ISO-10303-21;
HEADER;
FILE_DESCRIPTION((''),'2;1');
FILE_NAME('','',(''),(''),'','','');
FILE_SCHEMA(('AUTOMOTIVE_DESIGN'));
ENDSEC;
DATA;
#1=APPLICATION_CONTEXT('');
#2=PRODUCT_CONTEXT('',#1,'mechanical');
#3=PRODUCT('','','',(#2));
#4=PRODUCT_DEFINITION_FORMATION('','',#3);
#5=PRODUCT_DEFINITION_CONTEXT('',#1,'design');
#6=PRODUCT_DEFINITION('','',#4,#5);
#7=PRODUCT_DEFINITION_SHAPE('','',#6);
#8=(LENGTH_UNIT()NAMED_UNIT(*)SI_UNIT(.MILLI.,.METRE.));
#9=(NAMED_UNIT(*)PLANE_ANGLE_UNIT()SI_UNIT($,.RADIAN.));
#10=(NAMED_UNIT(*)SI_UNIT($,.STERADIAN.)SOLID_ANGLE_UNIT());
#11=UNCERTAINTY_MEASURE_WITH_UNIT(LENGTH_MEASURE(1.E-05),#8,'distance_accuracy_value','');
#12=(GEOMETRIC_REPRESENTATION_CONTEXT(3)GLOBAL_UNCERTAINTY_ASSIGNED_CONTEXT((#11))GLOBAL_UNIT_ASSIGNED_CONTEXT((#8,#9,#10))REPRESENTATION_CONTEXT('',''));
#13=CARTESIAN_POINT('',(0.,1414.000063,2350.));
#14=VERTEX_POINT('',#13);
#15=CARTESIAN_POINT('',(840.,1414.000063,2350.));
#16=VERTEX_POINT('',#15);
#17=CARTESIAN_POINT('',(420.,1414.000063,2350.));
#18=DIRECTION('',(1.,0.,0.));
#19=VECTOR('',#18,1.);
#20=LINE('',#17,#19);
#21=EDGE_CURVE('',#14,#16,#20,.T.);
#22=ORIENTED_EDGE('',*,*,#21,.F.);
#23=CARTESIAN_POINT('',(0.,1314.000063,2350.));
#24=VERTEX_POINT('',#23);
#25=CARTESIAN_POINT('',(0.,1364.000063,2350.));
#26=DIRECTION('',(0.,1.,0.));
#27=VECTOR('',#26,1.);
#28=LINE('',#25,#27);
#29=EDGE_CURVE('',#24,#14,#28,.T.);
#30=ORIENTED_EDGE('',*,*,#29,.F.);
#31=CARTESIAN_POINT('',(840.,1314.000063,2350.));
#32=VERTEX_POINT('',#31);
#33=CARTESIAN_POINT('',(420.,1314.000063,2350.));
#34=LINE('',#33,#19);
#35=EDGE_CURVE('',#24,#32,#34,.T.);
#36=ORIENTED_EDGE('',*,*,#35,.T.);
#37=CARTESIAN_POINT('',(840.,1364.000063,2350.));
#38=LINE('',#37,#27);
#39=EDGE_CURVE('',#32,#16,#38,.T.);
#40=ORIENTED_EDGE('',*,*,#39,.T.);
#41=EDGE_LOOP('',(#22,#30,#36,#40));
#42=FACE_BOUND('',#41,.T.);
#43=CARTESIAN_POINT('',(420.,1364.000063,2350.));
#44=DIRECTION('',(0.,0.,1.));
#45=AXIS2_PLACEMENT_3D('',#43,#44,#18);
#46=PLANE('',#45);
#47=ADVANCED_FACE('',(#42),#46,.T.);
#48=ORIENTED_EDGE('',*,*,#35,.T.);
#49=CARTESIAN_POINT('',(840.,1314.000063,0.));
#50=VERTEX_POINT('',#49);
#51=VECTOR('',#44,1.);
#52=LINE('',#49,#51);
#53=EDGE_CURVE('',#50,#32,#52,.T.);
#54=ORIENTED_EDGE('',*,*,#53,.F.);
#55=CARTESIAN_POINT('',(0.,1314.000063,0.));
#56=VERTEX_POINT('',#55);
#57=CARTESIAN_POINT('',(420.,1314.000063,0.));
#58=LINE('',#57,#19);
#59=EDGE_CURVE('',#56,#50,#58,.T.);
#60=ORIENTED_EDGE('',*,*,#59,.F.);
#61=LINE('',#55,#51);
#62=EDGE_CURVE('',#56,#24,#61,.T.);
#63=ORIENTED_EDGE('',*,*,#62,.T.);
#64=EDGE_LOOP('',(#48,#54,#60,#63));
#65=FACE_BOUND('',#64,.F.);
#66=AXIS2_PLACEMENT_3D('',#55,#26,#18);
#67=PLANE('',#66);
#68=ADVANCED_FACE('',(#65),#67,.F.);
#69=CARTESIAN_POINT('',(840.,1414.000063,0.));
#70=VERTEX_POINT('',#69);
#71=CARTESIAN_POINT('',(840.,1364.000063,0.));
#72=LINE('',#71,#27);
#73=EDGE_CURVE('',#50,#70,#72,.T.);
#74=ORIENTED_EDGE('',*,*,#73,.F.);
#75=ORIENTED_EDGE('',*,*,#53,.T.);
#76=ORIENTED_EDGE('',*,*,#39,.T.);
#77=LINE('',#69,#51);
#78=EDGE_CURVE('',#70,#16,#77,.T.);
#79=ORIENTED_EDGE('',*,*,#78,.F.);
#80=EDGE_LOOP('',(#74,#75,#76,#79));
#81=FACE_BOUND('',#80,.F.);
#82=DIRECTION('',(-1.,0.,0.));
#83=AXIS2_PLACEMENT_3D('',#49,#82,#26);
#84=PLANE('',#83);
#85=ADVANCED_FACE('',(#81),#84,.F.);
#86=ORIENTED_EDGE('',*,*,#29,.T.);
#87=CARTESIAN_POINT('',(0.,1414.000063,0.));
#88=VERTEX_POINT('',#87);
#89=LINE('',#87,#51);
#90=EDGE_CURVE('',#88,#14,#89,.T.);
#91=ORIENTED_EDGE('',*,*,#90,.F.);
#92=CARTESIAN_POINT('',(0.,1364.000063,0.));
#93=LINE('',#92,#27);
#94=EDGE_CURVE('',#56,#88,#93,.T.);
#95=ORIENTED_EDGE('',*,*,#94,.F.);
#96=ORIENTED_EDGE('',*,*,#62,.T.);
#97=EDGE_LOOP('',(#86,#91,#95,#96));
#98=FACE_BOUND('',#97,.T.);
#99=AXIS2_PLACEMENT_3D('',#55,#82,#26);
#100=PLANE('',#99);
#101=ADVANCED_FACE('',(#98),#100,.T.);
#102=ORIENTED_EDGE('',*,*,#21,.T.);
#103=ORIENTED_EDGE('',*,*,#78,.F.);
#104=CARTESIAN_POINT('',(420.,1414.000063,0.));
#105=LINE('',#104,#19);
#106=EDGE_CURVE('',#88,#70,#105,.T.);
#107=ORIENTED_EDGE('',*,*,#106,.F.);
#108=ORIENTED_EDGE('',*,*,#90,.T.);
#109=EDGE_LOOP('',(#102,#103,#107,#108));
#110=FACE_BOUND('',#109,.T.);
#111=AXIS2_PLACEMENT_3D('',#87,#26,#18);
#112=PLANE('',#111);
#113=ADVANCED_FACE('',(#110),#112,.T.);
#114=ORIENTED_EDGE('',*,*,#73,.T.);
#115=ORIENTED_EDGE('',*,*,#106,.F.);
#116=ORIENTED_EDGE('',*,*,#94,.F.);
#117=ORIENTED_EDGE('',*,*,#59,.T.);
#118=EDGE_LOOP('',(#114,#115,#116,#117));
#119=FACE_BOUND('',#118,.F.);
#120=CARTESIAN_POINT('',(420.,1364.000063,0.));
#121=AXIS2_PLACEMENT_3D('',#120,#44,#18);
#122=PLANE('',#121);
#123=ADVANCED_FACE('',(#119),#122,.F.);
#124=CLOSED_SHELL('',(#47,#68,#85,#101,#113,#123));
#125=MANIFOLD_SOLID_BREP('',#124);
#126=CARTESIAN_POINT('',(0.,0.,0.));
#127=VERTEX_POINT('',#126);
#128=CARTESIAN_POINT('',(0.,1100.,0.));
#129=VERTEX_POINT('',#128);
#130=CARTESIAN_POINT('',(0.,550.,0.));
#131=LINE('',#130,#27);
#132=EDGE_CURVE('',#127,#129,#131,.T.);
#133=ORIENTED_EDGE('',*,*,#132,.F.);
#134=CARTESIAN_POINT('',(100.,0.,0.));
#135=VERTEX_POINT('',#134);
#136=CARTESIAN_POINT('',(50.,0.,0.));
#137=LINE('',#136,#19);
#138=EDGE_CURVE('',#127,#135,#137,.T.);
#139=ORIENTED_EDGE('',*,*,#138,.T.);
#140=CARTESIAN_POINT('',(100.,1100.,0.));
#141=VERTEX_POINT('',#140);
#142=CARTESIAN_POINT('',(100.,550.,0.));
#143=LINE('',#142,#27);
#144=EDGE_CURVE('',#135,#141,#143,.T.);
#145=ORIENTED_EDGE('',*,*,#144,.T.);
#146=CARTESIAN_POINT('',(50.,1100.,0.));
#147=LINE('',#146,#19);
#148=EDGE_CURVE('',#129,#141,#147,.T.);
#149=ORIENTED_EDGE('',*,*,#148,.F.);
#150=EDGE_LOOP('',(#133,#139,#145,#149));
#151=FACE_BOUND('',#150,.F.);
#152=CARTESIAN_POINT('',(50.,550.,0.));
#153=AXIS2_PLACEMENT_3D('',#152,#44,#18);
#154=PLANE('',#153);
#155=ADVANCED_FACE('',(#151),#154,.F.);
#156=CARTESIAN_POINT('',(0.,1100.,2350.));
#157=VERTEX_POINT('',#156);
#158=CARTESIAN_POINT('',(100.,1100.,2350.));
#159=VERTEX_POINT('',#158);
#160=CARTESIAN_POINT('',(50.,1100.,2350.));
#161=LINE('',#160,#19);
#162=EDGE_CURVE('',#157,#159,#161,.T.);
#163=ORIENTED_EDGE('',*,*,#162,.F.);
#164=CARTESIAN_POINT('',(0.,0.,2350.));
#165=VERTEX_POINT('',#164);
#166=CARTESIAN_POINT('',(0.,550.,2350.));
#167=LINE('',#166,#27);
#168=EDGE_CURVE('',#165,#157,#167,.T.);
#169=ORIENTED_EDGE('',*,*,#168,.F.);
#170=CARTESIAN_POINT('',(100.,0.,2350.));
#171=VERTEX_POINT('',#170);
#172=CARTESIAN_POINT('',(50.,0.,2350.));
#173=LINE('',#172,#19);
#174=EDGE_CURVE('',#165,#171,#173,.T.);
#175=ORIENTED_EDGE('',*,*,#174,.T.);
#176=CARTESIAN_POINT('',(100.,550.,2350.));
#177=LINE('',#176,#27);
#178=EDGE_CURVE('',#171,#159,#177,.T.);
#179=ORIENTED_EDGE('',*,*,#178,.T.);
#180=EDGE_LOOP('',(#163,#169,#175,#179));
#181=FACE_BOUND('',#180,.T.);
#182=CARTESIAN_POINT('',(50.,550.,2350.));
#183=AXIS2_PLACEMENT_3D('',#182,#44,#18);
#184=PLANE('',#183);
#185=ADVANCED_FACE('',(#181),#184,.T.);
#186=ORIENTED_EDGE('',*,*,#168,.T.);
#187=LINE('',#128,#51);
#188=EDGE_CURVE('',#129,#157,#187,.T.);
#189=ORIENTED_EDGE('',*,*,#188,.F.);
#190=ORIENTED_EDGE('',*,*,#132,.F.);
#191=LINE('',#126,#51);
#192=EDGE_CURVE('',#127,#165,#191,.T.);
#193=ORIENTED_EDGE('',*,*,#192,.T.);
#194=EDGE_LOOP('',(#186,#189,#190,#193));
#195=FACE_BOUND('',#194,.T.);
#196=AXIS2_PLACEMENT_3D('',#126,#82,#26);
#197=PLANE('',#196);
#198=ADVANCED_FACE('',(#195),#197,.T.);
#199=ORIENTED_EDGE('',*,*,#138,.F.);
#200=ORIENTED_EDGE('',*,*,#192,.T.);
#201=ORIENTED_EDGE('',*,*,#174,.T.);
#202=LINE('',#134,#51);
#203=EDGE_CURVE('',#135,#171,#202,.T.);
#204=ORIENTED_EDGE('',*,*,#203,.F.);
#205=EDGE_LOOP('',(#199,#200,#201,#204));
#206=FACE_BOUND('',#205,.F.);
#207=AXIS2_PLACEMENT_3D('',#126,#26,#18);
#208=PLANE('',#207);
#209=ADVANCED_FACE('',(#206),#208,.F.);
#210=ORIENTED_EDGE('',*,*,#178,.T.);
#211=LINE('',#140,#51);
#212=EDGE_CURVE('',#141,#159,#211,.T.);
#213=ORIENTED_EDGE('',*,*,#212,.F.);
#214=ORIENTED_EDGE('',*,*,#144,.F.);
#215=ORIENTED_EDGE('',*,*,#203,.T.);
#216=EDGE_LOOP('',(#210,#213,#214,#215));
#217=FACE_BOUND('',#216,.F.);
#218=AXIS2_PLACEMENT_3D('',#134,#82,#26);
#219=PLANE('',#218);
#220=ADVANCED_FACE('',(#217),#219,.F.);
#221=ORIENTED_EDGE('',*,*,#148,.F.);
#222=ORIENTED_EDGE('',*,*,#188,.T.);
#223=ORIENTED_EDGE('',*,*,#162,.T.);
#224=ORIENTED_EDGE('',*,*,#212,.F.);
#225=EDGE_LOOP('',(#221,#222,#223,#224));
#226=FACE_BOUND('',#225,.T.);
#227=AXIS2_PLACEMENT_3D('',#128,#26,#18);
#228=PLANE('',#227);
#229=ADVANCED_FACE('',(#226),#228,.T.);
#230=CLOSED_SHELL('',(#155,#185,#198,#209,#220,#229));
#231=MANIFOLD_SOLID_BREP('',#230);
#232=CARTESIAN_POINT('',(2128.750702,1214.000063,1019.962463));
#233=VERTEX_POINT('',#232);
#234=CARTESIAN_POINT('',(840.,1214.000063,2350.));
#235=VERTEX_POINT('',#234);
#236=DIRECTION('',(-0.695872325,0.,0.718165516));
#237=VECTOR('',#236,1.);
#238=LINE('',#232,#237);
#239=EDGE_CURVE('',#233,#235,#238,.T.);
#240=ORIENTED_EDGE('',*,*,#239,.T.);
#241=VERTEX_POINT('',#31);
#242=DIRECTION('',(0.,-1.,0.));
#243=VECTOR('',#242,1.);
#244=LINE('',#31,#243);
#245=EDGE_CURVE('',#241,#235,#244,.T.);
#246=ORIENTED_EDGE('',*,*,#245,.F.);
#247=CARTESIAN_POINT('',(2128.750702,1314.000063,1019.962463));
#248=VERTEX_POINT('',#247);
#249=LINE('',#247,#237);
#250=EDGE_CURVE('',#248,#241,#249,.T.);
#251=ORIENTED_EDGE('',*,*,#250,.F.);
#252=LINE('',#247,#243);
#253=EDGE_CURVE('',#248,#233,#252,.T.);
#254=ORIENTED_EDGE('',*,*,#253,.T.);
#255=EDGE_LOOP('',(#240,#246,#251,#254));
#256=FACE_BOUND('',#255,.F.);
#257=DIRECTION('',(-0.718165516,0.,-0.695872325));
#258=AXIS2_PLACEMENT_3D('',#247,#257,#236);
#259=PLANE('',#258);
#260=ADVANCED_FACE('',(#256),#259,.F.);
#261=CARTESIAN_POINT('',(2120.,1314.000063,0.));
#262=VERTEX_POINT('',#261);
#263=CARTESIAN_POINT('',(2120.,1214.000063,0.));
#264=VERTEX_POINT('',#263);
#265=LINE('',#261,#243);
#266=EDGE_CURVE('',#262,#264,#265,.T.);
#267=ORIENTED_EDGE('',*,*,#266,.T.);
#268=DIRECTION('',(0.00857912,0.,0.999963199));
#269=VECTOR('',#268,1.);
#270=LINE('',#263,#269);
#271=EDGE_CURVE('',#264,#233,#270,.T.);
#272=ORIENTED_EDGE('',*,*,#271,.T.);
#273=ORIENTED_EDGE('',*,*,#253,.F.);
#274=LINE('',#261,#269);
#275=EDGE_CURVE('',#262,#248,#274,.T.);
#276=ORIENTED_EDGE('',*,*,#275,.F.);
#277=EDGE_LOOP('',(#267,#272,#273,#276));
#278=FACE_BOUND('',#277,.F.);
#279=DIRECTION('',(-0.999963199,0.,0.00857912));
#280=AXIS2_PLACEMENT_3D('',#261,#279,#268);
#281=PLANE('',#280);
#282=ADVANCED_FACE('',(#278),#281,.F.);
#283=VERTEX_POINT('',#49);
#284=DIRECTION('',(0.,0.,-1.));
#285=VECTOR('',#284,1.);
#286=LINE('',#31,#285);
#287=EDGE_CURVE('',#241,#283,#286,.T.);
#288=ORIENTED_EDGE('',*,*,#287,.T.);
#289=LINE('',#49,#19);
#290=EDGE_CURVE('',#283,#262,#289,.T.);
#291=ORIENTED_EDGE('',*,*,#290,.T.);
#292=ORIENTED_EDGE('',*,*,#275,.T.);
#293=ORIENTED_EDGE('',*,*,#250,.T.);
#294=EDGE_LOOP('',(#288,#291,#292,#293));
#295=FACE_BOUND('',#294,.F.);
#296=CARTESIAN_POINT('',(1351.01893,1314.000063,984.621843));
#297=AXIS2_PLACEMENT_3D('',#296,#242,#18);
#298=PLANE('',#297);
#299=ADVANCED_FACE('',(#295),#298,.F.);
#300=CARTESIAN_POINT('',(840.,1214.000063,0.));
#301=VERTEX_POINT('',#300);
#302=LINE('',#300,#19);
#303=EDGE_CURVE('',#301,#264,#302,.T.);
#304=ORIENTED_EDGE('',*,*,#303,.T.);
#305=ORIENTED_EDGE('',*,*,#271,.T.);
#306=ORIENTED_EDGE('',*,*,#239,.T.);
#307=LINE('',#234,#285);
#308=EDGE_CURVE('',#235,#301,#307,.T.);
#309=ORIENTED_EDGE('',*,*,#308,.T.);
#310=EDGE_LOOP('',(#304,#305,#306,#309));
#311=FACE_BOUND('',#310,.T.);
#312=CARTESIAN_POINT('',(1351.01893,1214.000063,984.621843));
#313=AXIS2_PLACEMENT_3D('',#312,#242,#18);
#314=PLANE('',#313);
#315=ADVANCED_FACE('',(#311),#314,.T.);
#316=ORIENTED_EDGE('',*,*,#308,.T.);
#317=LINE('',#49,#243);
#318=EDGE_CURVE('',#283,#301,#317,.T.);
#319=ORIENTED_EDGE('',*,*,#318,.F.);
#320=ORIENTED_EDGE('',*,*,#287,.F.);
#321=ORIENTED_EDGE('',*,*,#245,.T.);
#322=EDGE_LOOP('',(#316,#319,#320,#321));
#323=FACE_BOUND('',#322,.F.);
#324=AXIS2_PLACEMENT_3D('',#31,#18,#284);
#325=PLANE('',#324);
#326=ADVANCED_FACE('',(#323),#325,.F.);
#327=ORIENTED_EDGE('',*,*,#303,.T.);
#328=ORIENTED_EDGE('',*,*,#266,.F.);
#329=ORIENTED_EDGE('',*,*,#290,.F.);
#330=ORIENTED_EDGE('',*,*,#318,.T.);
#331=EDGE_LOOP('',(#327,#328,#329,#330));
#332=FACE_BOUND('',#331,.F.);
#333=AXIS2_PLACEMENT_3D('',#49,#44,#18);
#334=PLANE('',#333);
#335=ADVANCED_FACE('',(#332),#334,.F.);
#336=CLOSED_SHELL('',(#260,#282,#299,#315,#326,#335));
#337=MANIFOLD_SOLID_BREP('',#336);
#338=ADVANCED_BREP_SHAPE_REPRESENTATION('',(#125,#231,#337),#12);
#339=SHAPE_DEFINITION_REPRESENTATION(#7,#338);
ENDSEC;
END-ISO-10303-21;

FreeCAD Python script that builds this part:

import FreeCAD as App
import Part
import Sketcher
Q = App.Units.Quantity

doc = App.newDocument("Part")
params = doc.addObject("Spreadsheet::Sheet", "Params")
for row, (alias, value) in enumerate([
    ("sketch1_width", "100 mm"),
    ("sketch1_height", "1100 mm"),
    ("pad1_length", "2350 mm"),
    ("sketch2_width", "840 mm"),
    ("sketch2_height", "100 mm"),
    ("pad2_length", "2350 mm"),
    ("sketch3_width", "1280 mm"),
    ("sketch3_height", "2350 mm"),
    ("sketch3_length", "1020 mm"),
    ("pad3_length", "100 mm"),
], start=1):
    params.set(f"A{row}", alias)
    params.set(f"B{row}", "=" + value)
    params.setAlias(f"B{row}", alias)

body = doc.addObject("PartDesign::Body", "Body")

# Sketch on XY plane
sketch1 = doc.addObject("Sketcher::SketchObject", "Sketch")
body.addObject(sketch1)
sketch1.AttachmentSupport = (doc.XY_Plane, [""])
sketch1.MapMode = "FlatFace"
sketch1.addGeometry(Part.LineSegment(App.Vector(0, 1100, 0), App.Vector(0, 0, 0)), False)
sketch1.addGeometry(Part.LineSegment(App.Vector(0, 0, 0), App.Vector(100, 0, 0)), False)
sketch1.addGeometry(Part.LineSegment(App.Vector(100, 0, 0), App.Vector(100, 1100, 0)), False)
sketch1.addGeometry(Part.LineSegment(App.Vector(100, 1100, 0), App.Vector(0, 1100, 0)), False)
sketch1.addConstraint(Sketcher.Constraint("Coincident", 0, 2, 1, 1))
sketch1.addConstraint(Sketcher.Constraint("Coincident", 1, 2, 2, 1))
sketch1.addConstraint(Sketcher.Constraint("Coincident", 2, 2, 3, 1))
sketch1.addConstraint(Sketcher.Constraint("Coincident", 3, 2, 0, 1))
sketch1.addConstraint(Sketcher.Constraint("Vertical", 0))
sketch1.addConstraint(Sketcher.Constraint("Horizontal", 1))
sketch1.addConstraint(Sketcher.Constraint("Vertical", 2))
sketch1.addConstraint(Sketcher.Constraint("Horizontal", 3))
sketch1.addConstraint(Sketcher.Constraint("Coincident", 0, 2, -1, 1))
sketch1.addConstraint(Sketcher.Constraint("DistanceX", 1, 1, 1, 2, Q("100 mm")))
sketch1.addConstraint(Sketcher.Constraint("DistanceY", 0, 2, 0, 1, Q("1100 mm")))
sketch1.setExpression("Constraints[9]", "Params.sketch1_width")
sketch1.setExpression("Constraints[10]", "Params.sketch1_height")
pad1 = doc.addObject("PartDesign::Pad", "Pad")
body.addObject(pad1)
pad1.Profile = sketch1
pad1.setExpression("Length", "Params.pad1_length")
body2 = doc.addObject("PartDesign::Body", "Body001")

# Sketch on XY plane
sketch2 = doc.addObject("Sketcher::SketchObject", "Sketch001")
body2.addObject(sketch2)
sketch2.AttachmentSupport = (doc.getObject("XY_Plane001"), [""])
sketch2.MapMode = "FlatFace"
sketch2.addGeometry(Part.LineSegment(App.Vector(0, 1414.000063, 0), App.Vector(0, 1314.000063, 0)), False)
sketch2.addGeometry(Part.LineSegment(App.Vector(0, 1314.000063, 0), App.Vector(840, 1314.000063, 0)), False)
sketch2.addGeometry(Part.LineSegment(App.Vector(840, 1314.000063, 0), App.Vector(840, 1414.000063, 0)), False)
sketch2.addGeometry(Part.LineSegment(App.Vector(840, 1414.000063, 0), App.Vector(0, 1414.000063, 0)), False)
sketch2.addConstraint(Sketcher.Constraint("Coincident", 0, 2, 1, 1))
sketch2.addConstraint(Sketcher.Constraint("Coincident", 1, 2, 2, 1))
sketch2.addConstraint(Sketcher.Constraint("Coincident", 2, 2, 3, 1))
sketch2.addConstraint(Sketcher.Constraint("Coincident", 3, 2, 0, 1))
sketch2.addConstraint(Sketcher.Constraint("Vertical", 0))
sketch2.addConstraint(Sketcher.Constraint("Horizontal", 1))
sketch2.addConstraint(Sketcher.Constraint("Vertical", 2))
sketch2.addConstraint(Sketcher.Constraint("Horizontal", 3))
sketch2.addConstraint(Sketcher.Constraint("PointOnObject", 0, 2, -2))
sketch2.addConstraint(Sketcher.Constraint("DistanceX", 1, 1, 1, 2, Q("840 mm")))
sketch2.addConstraint(Sketcher.Constraint("DistanceY", 0, 2, 0, 1, Q("100 mm")))
sketch2.addConstraint(Sketcher.Constraint("DistanceY", -1, 1, 0, 2, Q("1314.000063 mm")))
sketch2.setExpression("Constraints[9]", "Params.sketch2_width")
sketch2.setExpression("Constraints[10]", "Params.sketch2_height")
pad2 = doc.addObject("PartDesign::Pad", "Pad001")
body2.addObject(pad2)
pad2.Profile = sketch2
pad2.setExpression("Length", "Params.pad2_length")
body3 = doc.addObject("PartDesign::Body", "Body002")

# Sketch on XZ plane
sketch3 = doc.addObject("Sketcher::SketchObject", "Sketch002")
body3.addObject(sketch3)
sketch3.AttachmentSupport = (doc.getObject("XZ_Plane002"), [""])
sketch3.MapMode = "FlatFace"
sketch3.AttachmentOffset = App.Placement(App.Vector(0, 0, -1314.000063), App.Rotation())
sketch3.addGeometry(Part.LineSegment(App.Vector(2128.750702, 1019.962463, 0), App.Vector(840, 2350, 0)), False)
sketch3.addGeometry(Part.LineSegment(App.Vector(840, 2350, 0), App.Vector(840, 0, 0)), False)
sketch3.addGeometry(Part.LineSegment(App.Vector(840, 0, 0), App.Vector(2120, 0, 0)), False)
sketch3.addGeometry(Part.LineSegment(App.Vector(2120, 0, 0), App.Vector(2128.750702, 1019.962463, 0)), False)
sketch3.addConstraint(Sketcher.Constraint("Coincident", 0, 2, 1, 1))
sketch3.addConstraint(Sketcher.Constraint("Coincident", 1, 2, 2, 1))
sketch3.addConstraint(Sketcher.Constraint("Coincident", 2, 2, 3, 1))
sketch3.addConstraint(Sketcher.Constraint("Coincident", 3, 2, 0, 1))
sketch3.addConstraint(Sketcher.Constraint("Vertical", 1))
sketch3.addConstraint(Sketcher.Constraint("Horizontal", 2))
sketch3.addConstraint(Sketcher.Constraint("PointOnObject", 1, 2, -1))
sketch3.addConstraint(Sketcher.Constraint("DistanceX", 2, 1, 2, 2, Q("1280 mm")))
sketch3.addConstraint(Sketcher.Constraint("DistanceY", 1, 2, 1, 1, Q("2350 mm")))
sketch3.addConstraint(Sketcher.Constraint("Distance", 3, Q("1020 mm")))
sketch3.addConstraint(Sketcher.Constraint("DistanceX", -1, 1, 0, 2, Q("840 mm")))
sketch3.addConstraint(Sketcher.Constraint("DistanceX", -1, 1, 3, 2, Q("2128.750702 mm")))
sketch3.setExpression("Constraints[7]", "Params.sketch3_width")
sketch3.setExpression("Constraints[8]", "Params.sketch3_height")
sketch3.setExpression("Constraints[9]", "Params.sketch3_length")
pad3 = doc.addObject("PartDesign::Pad", "Pad002")
body3.addObject(pad3)
pad3.Profile = sketch3
pad3.setExpression("Length", "Params.pad3_length")

doc.recompute()
